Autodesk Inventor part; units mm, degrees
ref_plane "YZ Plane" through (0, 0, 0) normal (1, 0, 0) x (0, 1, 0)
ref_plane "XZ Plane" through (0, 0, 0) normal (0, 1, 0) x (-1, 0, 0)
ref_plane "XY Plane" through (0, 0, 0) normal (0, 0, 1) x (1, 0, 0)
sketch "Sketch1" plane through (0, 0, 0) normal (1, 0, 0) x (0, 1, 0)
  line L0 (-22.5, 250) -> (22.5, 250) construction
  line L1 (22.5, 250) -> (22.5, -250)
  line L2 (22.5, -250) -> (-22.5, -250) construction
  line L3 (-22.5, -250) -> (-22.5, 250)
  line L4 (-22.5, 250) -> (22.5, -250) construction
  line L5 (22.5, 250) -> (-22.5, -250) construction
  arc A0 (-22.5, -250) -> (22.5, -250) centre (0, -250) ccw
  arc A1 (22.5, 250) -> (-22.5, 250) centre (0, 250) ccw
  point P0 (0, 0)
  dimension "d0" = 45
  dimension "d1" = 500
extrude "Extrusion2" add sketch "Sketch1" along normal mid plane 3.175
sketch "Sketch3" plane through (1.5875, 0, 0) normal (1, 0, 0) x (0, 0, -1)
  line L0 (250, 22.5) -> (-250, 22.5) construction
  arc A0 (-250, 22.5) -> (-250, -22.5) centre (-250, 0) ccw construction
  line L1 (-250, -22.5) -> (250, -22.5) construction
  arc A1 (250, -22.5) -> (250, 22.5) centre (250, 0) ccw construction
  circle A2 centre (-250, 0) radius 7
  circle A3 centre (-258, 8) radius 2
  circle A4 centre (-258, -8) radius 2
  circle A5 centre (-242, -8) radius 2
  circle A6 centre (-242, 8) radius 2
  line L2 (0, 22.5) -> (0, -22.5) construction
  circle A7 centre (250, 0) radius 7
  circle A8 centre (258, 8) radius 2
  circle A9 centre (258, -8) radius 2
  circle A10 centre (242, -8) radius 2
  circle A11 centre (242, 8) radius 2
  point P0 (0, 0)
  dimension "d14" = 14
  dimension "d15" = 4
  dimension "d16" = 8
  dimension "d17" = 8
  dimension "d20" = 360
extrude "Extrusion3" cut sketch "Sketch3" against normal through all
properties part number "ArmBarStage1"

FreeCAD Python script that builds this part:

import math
import FreeCAD as App
import Part
import Sketcher

V = App.Vector

doc = App.newDocument("Part")
body = doc.addObject("PartDesign::Body", "Body")

sketch1 = body.newObject("Sketcher::SketchObject", "Sketch")
sketch1.AttachmentSupport = (doc.getObject("YZ_Plane"), [""])
sketch1.MapMode = "FlatFace"
sketch1.addGeometry([
    Part.LineSegment(V(22.5, -250, 0), V(22.5, 250, 0)),
    Part.ArcOfCircle(Part.Circle(V(0, 250, 0), V(0, 0, 1), 22.5), math.radians(0), math.radians(180)),
    Part.LineSegment(V(-22.5, 250, 0), V(-22.5, -250, 0)),
    Part.ArcOfCircle(Part.Circle(V(0, -250, 0), V(0, 0, 1), 22.5), math.radians(180), math.radians(360)),
], False)
sketch1.addConstraint([
    Sketcher.Constraint("Tangent", 0, 2, 1, 1),
    Sketcher.Constraint("Tangent", 1, 2, 2, 1),
    Sketcher.Constraint("Tangent", 2, 2, 3, 1),
    Sketcher.Constraint("Tangent", 3, 2, 0, 1),
    Sketcher.Constraint("Vertical", 0),
    Sketcher.Constraint("Vertical", 2),
    Sketcher.Constraint("Symmetric", 1, 3, 3, 3, -1, 1),
    Sketcher.Constraint("Radius", 1, 22.5),
    Sketcher.Constraint("DistanceY", 0, 1, 0, 2, 500.0),
])
pad1 = body.newObject("PartDesign::Pad", "Pad")
pad1.Profile = sketch1
pad1.Length = 3.175
pad1.Midplane = True

sketch2 = body.newObject("Sketcher::SketchObject", "Sketch001")
sketch2.AttachmentSupport = (doc.getObject("YZ_Plane"), [""])
sketch2.MapMode = "FlatFace"
sketch2.AttachmentOffset = App.Placement(V(0, 0, 1.5875), App.Rotation())
sketch2.addGeometry([
    Part.Circle(V(0, 250, 0), V(0, 0, 1), 7),
    Part.Circle(V(8, 258, 0), V(0, 0, 1), 2),
    Part.Circle(V(-8, 258, 0), V(0, 0, 1), 2),
    Part.Circle(V(-8, 242, 0), V(0, 0, 1), 2),
    Part.Circle(V(8, 242, 0), V(0, 0, 1), 2),
    Part.Circle(V(0, -250, 0), V(0, 0, 1), 7),
    Part.Circle(V(8, -258, 0), V(0, 0, 1), 2),
    Part.Circle(V(-8, -258, 0), V(0, 0, 1), 2),
    Part.Circle(V(-8, -242, 0), V(0, 0, 1), 2),
    Part.Circle(V(8, -242, 0), V(0, 0, 1), 2),
], False)
sketch2.addConstraint([
    Sketcher.Constraint("Equal", 1, 2),
    Sketcher.Constraint("Equal", 2, 3),
    Sketcher.Constraint("Equal", 3, 4),
    Sketcher.Constraint("Equal", 0, 5),
    Sketcher.Constraint("Equal", 4, 6),
    Sketcher.Constraint("Equal", 6, 7),
    Sketcher.Constraint("Equal", 7, 8),
    Sketcher.Constraint("Equal", 8, 9),
    Sketcher.Constraint("Symmetric", 0, 3, 5, 3, -1, 1),
    Sketcher.Constraint("Symmetric", 2, 3, 6, 3, -1, 1),
    Sketcher.Constraint("Symmetric", 1, 3, 7, 3, -1, 1),
    Sketcher.Constraint("Symmetric", 4, 3, 8, 3, -1, 1),
    Sketcher.Constraint("Symmetric", 3, 3, 9, 3, -1, 1),
    Sketcher.Constraint("Symmetric", 1, 3, 2, 3, -2),
    Sketcher.Constraint("Symmetric", 3, 3, 4, 3, -2),
    Sketcher.Constraint("PointOnObject", 0, 3, -2),
    Sketcher.Constraint("Vertical", 2, 3, 3, 3),
    Sketcher.Constraint("Diameter", 0, 14.0),
    Sketcher.Constraint("Diameter", 1, 4.0),
    Sketcher.Constraint("DistanceX", -1, 1, 1, 3, 8.0),
    Sketcher.Constraint("DistanceY", 0, 3, 1, 3, 8.0),
    Sketcher.Constraint("DistanceY", 3, 3, 0, 3, 8.0),
    Sketcher.Constraint("DistanceY", -1, 1, 0, 3, 250.0),
])
pocket1 = body.newObject("PartDesign::Pocket", "Pocket")
pocket1.Profile = sketch2
pocket1.Type = "ThroughAll"

doc.recompute()
